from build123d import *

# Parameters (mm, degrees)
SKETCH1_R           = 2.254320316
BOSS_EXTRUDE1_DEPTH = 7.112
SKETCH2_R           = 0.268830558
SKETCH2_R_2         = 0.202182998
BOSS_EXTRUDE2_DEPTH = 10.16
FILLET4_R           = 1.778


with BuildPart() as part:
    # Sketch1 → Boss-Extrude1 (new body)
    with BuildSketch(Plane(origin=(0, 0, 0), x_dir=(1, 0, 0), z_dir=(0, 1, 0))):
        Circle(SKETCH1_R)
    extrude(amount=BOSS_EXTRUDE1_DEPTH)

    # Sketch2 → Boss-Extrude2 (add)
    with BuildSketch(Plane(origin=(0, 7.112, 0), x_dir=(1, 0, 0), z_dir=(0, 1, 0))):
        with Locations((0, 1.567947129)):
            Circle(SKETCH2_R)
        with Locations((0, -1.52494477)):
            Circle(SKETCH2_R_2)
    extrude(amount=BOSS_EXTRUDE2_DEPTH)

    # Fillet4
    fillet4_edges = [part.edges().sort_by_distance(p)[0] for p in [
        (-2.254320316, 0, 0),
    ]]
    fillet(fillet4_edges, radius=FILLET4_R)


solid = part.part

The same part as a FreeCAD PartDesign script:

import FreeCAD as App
import Part
import Sketcher
Q = App.Units.Quantity


def edges_at(feature, points):
    """Names of the edges that pass closest to the given points."""
    edges = feature.Shape.Edges
    near = lambda p: min(range(len(edges)), key=lambda i: edges[i].distToShape(Part.Vertex(*p))[0])
    return sorted({f"Edge{near(p) + 1}" for p in points})

doc = App.newDocument("Part")
body = doc.addObject("PartDesign::Body", "Body")

# Sketch on XZ plane
sketch1 = body.newObject("Sketcher::SketchObject", "Sketch")
sketch1.AttachmentSupport = (doc.getObject("XZ_Plane"), [""])
sketch1.MapMode = "FlatFace"
sketch1.addGeometry(Part.Circle(App.Vector(0, 0, 0), App.Vector(0, 0, 1), 2.3), False)
sketch1.addConstraint([
    Sketcher.Constraint("Coincident", 0, 3, -1, 1),
    Sketcher.Constraint("Diameter", 0, 4.508641),
])
pad1 = body.newObject("PartDesign::Pad", "Pad")
pad1.Profile = sketch1
pad1.Length = Q("0.28 in")
pad1.Reversed = True

# Sketch on XZ plane
sketch2 = body.newObject("Sketcher::SketchObject", "Sketch001")
sketch2.AttachmentSupport = (doc.getObject("XZ_Plane"), [""])
sketch2.MapMode = "FlatFace"
sketch2.AttachmentOffset = App.Placement(App.Vector(0, 0, -0.28 * 25.4), App.Rotation())
sketch2.addGeometry([
    Part.Circle(App.Vector(0, -1.57, 0), App.Vector(0, 0, 1), 0.27),
    Part.Circle(App.Vector(0, 1.52, 0), App.Vector(0, 0, 1), 0.2),
], False)
sketch2.addConstraint([
    Sketcher.Constraint("PointOnObject", 0, 3, -2),
    Sketcher.Constraint("PointOnObject", 1, 3, -2),
    Sketcher.Constraint("Diameter", 0, 0.537661),
    Sketcher.Constraint("Diameter", 1, 0.404366),
    Sketcher.Constraint("DistanceY", 0, 3, 1, 3, 3.092892),
    Sketcher.Constraint("DistanceY", 0, 3, -1, 1, 1.567947),
])
pad2 = body.newObject("PartDesign::Pad", "Pad001")
pad2.Profile = sketch2
pad2.Length = Q("0.4 in")
pad2.Reversed = True
doc.recompute()

fillet = body.newObject("PartDesign::Fillet", "Fillet")
fillet.Base = (pad2, edges_at(pad2, [(-2.254, 0, 0)]))
fillet.Radius = Q("0.07 in")

doc.recompute()
